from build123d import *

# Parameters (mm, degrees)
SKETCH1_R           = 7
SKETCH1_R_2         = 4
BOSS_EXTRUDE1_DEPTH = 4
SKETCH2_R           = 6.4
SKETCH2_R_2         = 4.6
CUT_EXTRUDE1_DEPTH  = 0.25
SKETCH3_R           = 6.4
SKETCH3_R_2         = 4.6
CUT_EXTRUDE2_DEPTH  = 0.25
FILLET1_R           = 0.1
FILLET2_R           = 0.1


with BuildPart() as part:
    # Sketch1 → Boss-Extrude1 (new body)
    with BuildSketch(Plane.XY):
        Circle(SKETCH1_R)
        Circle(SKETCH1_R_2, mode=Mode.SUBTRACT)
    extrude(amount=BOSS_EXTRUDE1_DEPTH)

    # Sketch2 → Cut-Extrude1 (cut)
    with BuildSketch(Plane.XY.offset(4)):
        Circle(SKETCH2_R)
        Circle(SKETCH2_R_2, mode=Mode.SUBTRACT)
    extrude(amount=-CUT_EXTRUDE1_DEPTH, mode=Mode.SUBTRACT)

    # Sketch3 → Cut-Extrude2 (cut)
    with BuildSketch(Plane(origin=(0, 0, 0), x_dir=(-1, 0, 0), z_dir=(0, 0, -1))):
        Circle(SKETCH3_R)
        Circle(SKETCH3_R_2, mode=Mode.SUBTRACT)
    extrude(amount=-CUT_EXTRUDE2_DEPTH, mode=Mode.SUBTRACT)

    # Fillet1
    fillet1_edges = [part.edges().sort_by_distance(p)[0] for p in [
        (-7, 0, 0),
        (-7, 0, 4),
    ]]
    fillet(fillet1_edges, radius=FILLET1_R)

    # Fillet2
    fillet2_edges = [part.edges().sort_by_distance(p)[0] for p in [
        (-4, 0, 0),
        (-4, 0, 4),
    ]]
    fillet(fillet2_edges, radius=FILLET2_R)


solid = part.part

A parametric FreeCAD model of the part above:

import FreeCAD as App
import Part
import Sketcher
from FreeCAD import Vector


def edges_at(feature, points):
    """Names of the edges that pass closest to the given points."""
    edges = feature.Shape.Edges
    near = lambda p: min(range(len(edges)), key=lambda i: edges[i].distToShape(Part.Vertex(*p))[0])
    return sorted({f"Edge{near(p) + 1}" for p in points})

doc = App.newDocument("Part")
params = doc.addObject("Spreadsheet::Sheet", "Params")
for row, (alias, value) in enumerate([
    ("sketch1_diameter", "14 mm"),
    ("sketch1_diameter2", "8 mm"),
    ("pad1_length", "4 mm"),
    ("sketch2_diameter", "12.8 mm"),
    ("sketch2_diameter2", "9.2 mm"),
    ("pocket1_length", "0.25 mm"),
    ("sketch3_diameter", "12.8 mm"),
    ("sketch3_diameter2", "9.2 mm"),
    ("pocket2_length", "0.25 mm"),
    ("fillet_radius", "0.1 mm"),
    ("fillet2_radius", "0.1 mm"),
], start=1):
    params.set(f"A{row}", alias)
    params.set(f"B{row}", "=" + value)
    params.setAlias(f"B{row}", alias)

body = doc.addObject("PartDesign::Body", "Body")

sketch1 = body.newObject("Sketcher::SketchObject", "Sketch")
sketch1.AttachmentSupport = (doc.getObject("XY_Plane"), [""])
sketch1.MapMode = "FlatFace"
sketch1.addGeometry([
    Part.Circle(Vector(0, 0, 0), Vector(0, 0, 1), 7),
    Part.Circle(Vector(0, 0, 0), Vector(0, 0, 1), 4),
], False)
sketch1.addConstraint([
    Sketcher.Constraint("Coincident", 0, 3, -1, 1),
    Sketcher.Constraint("Coincident", 1, 3, -1, 1),
    Sketcher.Constraint("Diameter", 0, 14.0),
    Sketcher.Constraint("Diameter", 1, 8.0),
])
sketch1.setExpression("Constraints[2]", "Params.sketch1_diameter")
sketch1.setExpression("Constraints[3]", "Params.sketch1_diameter2")
pad1 = body.newObject("PartDesign::Pad", "Pad")
pad1.Profile = sketch1
pad1.setExpression("Length", "Params.pad1_length")

sketch2 = body.newObject("Sketcher::SketchObject", "Sketch001")
sketch2.AttachmentSupport = (doc.getObject("XY_Plane"), [""])
sketch2.MapMode = "FlatFace"
sketch2.AttachmentOffset = App.Placement(Vector(0, 0, 4), App.Rotation())
sketch2.addGeometry([
    Part.Circle(Vector(0, 0, 0), Vector(0, 0, 1), 6.4),
    Part.Circle(Vector(0, 0, 0), Vector(0, 0, 1), 4.6),
], False)
sketch2.addConstraint([
    Sketcher.Constraint("Coincident", 0, 3, -1, 1),
    Sketcher.Constraint("Coincident", 1, 3, -1, 1),
    Sketcher.Constraint("Diameter", 0, 12.8),
    Sketcher.Constraint("Diameter", 1, 9.2),
])
sketch2.setExpression("Constraints[2]", "Params.sketch2_diameter")
sketch2.setExpression("Constraints[3]", "Params.sketch2_diameter2")
pocket1 = body.newObject("PartDesign::Pocket", "Pocket")
pocket1.Profile = sketch2
pocket1.setExpression("Length", "Params.pocket1_length")

sketch3 = body.newObject("Sketcher::SketchObject", "Sketch002")
sketch3.AttachmentSupport = (doc.getObject("XY_Plane"), [""])
sketch3.MapMode = "FlatFace"
sketch3.addGeometry([
    Part.Circle(Vector(0, 0, 0), Vector(0, 0, 1), 6.4),
    Part.Circle(Vector(0, 0, 0), Vector(0, 0, 1), 4.6),
], False)
sketch3.addConstraint([
    Sketcher.Constraint("Coincident", 0, 3, -1, 1),
    Sketcher.Constraint("Coincident", 1, 3, -1, 1),
    Sketcher.Constraint("Diameter", 0, 12.8),
    Sketcher.Constraint("Diameter", 1, 9.2),
])
sketch3.setExpression("Constraints[2]", "Params.sketch3_diameter")
sketch3.setExpression("Constraints[3]", "Params.sketch3_diameter2")
pocket2 = body.newObject("PartDesign::Pocket", "Pocket001")
pocket2.Profile = sketch3
pocket2.setExpression("Length", "Params.pocket2_length")
pocket2.Reversed = True
doc.recompute()

fillet = body.newObject("PartDesign::Fillet", "Fillet")
fillet.Base = (pocket2, edges_at(pocket2, [(-7, 0, 0), (-7, 0, 4)]))
fillet.setExpression("Radius", "Params.fillet_radius")
doc.recompute()

fillet2 = body.newObject("PartDesign::Fillet", "Fillet001")
fillet2.Base = (fillet, edges_at(fillet, [(-4, 0, 0), (-4, 0, 4)]))
fillet2.setExpression("Radius", "Params.fillet2_radius")

doc.recompute()
